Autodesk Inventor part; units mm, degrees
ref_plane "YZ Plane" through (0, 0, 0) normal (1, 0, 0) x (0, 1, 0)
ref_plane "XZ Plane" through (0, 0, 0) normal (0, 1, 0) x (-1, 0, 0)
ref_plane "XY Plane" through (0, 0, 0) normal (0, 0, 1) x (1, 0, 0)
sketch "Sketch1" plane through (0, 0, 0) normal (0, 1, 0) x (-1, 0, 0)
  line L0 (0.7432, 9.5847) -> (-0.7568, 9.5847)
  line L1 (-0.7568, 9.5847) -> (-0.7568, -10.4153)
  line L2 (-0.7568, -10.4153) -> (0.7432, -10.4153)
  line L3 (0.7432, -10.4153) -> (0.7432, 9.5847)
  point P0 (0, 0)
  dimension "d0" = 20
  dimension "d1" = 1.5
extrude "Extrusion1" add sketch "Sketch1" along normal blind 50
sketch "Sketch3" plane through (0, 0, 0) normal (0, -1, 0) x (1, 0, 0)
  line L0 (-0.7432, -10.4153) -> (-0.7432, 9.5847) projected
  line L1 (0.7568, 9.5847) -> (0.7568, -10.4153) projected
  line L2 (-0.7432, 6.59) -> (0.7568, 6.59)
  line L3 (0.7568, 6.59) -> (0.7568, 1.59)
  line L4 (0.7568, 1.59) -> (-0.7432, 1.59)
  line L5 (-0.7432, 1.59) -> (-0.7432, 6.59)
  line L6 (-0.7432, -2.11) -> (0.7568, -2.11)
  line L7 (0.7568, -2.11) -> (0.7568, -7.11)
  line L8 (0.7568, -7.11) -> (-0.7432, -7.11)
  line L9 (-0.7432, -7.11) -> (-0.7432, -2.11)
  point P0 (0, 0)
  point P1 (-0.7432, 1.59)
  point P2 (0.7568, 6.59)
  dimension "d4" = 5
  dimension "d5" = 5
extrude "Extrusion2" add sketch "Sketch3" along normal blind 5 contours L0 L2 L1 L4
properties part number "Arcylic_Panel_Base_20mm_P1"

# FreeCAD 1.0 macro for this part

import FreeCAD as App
import Part
import Sketcher
Q = App.Units.Quantity


def add_polygon(sketch, points):
    """Adds a closed chain of lines whose ends are joined by coincident constraints."""
    first, n = sketch.GeometryCount, len(points)
    for a, b in zip(points, points[1:] + points[:1]):
        sketch.addGeometry(Part.LineSegment(App.Vector(*a, 0), App.Vector(*b, 0)), False)
    for i in range(n):
        sketch.addConstraint(Sketcher.Constraint("Coincident", first + i, 2, first + (i + 1) % n, 1))

doc = App.newDocument("Part")
body = doc.addObject("PartDesign::Body", "Body")

# Sketch on XZ plane
sketch1 = body.newObject("Sketcher::SketchObject", "Sketch")
sketch1.AttachmentSupport = (doc.getObject("XZ_Plane"), [""])
sketch1.MapMode = "FlatFace"
add_polygon(sketch1, [(-0.7, -10.4), (-0.7, 9.6), (0.8, 9.6), (0.8, -10.4)])  # lines 0-3
sketch1.addConstraint(Sketcher.Constraint("Vertical", 0))
sketch1.addConstraint(Sketcher.Constraint("Horizontal", 1))
sketch1.addConstraint(Sketcher.Constraint("Vertical", 2))
sketch1.addConstraint(Sketcher.Constraint("Horizontal", 3))
sketch1.addConstraint(Sketcher.Constraint("DistanceY", 0, 1, 0, 2, Q("20 mm")))
sketch1.addConstraint(Sketcher.Constraint("DistanceX", 1, 1, 1, 2, Q("1.5 mm")))
sketch1.addConstraint(Sketcher.Constraint("DistanceX", 0, 2, -1, 1, Q("0.7432 mm")))
sketch1.addConstraint(Sketcher.Constraint("DistanceY", -1, 1, 0, 2, Q("9.5847 mm")))
pad1 = body.newObject("PartDesign::Pad", "Pad")
pad1.Profile = sketch1
pad1.Length = 50
pad1.Reversed = True

# Sketch on XZ plane
sketch2 = body.newObject("Sketcher::SketchObject", "Sketch001")
sketch2.AttachmentSupport = (doc.getObject("XZ_Plane"), [""])
sketch2.MapMode = "FlatFace"
add_polygon(sketch2, [(-0.7, 6.6), (-0.7, 1.6), (0.8, 1.6), (0.8, 6.6)])  # lines 0-3
sketch2.addConstraint(Sketcher.Constraint("Vertical", 0))
sketch2.addConstraint(Sketcher.Constraint("Horizontal", 1))
sketch2.addConstraint(Sketcher.Constraint("Vertical", 2))
sketch2.addConstraint(Sketcher.Constraint("Horizontal", 3))
sketch2.addConstraint(Sketcher.Constraint("DistanceY", 0, 2, 0, 1, Q("5 mm")))
sketch2.addConstraint(Sketcher.Constraint("DistanceX", 1, 1, 1, 2, Q("1.5 mm")))
sketch2.addConstraint(Sketcher.Constraint("DistanceY", -1, 1, 0, 2, Q("1.59 mm")))
sketch2.addConstraint(Sketcher.Constraint("DistanceX", 0, 2, -1, 1, Q("0.7432 mm")))
pad2 = body.newObject("PartDesign::Pad", "Pad001")
pad2.Profile = sketch2
pad2.Length = 5

doc.recompute()
